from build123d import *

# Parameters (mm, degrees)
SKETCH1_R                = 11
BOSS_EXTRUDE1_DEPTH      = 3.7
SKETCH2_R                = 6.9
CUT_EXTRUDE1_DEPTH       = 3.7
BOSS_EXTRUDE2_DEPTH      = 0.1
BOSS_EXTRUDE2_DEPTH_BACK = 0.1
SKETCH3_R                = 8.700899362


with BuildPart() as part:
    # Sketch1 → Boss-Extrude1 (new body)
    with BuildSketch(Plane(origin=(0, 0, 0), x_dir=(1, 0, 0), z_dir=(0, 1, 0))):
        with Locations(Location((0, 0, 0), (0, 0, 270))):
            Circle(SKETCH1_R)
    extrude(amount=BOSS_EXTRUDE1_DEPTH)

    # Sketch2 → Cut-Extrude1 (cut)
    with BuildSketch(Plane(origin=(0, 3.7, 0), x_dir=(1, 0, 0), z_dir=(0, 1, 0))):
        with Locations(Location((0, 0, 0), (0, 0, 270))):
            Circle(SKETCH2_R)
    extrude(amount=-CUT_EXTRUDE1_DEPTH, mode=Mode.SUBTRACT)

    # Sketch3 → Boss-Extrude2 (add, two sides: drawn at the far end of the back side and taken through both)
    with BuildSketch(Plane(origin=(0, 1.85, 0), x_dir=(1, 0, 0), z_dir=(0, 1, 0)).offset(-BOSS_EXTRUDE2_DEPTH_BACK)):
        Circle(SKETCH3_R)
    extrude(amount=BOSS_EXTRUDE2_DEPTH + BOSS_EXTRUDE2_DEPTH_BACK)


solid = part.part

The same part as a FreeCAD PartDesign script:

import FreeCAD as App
import Part
import Sketcher
from FreeCAD import Vector

doc = App.newDocument("Part")
body = doc.addObject("PartDesign::Body", "Body")

# Sketch on XZ plane
sketch1 = body.newObject("Sketcher::SketchObject", "Sketch")
sketch1.AttachmentSupport = (doc.getObject("XZ_Plane"), [""])
sketch1.MapMode = "FlatFace"
sketch1.addGeometry(Part.Circle(Vector(0, 0, 0), Vector(0, 0, 1), 11), False)
sketch1.addConstraint(Sketcher.Constraint("Coincident", 0, 3, -1, 1))
sketch1.addConstraint(Sketcher.Constraint("Diameter", 0, 22.0))
pad1 = body.newObject("PartDesign::Pad", "Pad")
pad1.Profile = sketch1
pad1.Length = 3.7
pad1.Reversed = True

# Sketch on XZ plane
sketch2 = body.newObject("Sketcher::SketchObject", "Sketch001")
sketch2.AttachmentSupport = (doc.getObject("XZ_Plane"), [""])
sketch2.MapMode = "FlatFace"
sketch2.AttachmentOffset = App.Placement(Vector(0, 0, -3.7), App.Rotation())
sketch2.addGeometry(Part.Circle(Vector(0, 0, 0), Vector(0, 0, 1), 6.9), False)
sketch2.addConstraint(Sketcher.Constraint("Coincident", 0, 3, -1, 1))
sketch2.addConstraint(Sketcher.Constraint("Diameter", 0, 13.8))
pocket1 = body.newObject("PartDesign::Pocket", "Pocket")
pocket1.Profile = sketch2
pocket1.Length = 3.7
pocket1.Reversed = True

# Sketch on XZ plane
sketch3 = body.newObject("Sketcher::SketchObject", "Sketch002")
sketch3.AttachmentSupport = (doc.getObject("XZ_Plane"), [""])
sketch3.MapMode = "FlatFace"
sketch3.AttachmentOffset = App.Placement(Vector(0, 0, -1.85), App.Rotation())
sketch3.addGeometry(Part.Circle(Vector(0, 0, 0), Vector(0, 0, 1), 8.700899), False)
sketch3.addConstraint(Sketcher.Constraint("Coincident", 0, 3, -1, 1))
sketch3.addConstraint(Sketcher.Constraint("Diameter", 0, 17.401799))
pad2 = body.newObject("PartDesign::Pad", "Pad001")
pad2.Profile = sketch3
pad2.Type = "TwoLengths"
pad2.Length = 0.1
pad2.Length2 = 0.1
pad2.Reversed = True

doc.recompute()
